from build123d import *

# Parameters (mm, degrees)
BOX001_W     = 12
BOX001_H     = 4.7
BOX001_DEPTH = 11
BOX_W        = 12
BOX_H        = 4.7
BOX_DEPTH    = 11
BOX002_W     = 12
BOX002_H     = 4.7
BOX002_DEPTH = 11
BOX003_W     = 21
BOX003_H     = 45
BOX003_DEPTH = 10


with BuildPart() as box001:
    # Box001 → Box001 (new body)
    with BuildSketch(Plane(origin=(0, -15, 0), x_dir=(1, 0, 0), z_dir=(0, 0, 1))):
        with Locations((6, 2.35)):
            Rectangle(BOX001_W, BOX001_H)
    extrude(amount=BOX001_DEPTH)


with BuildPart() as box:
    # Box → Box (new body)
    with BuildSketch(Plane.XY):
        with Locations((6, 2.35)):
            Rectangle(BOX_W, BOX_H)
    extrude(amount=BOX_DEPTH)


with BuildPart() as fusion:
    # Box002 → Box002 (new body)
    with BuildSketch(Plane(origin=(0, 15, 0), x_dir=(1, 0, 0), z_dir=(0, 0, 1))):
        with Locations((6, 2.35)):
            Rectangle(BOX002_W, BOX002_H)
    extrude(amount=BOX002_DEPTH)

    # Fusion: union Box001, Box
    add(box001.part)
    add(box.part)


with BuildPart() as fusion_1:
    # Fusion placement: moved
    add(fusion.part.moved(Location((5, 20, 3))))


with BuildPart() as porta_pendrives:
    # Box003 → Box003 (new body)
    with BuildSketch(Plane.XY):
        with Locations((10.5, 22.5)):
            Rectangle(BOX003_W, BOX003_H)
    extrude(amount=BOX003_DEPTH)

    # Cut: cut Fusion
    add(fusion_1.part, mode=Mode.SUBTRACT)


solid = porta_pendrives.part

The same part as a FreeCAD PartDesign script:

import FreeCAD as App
import Part
import Sketcher
Q = App.Units.Quantity

doc = App.newDocument("Part")
body = doc.addObject("PartDesign::Body", "Body")

sketch1 = doc.addObject("Sketcher::SketchObject", "Sketch")
body.addObject(sketch1)
sketch1.AttachmentSupport = (doc.XY_Plane, [""])
sketch1.MapMode = "FlatFace"
sketch1.addGeometry([
    Part.LineSegment(App.Vector(0, -10.3, 0), App.Vector(0, -15, 0)),
    Part.LineSegment(App.Vector(0, -15, 0), App.Vector(12, -15, 0)),
    Part.LineSegment(App.Vector(12, -15, 0), App.Vector(12, -10.3, 0)),
    Part.LineSegment(App.Vector(12, -10.3, 0), App.Vector(0, -10.3, 0)),
], False)
sketch1.addConstraint([
    Sketcher.Constraint("Coincident", 0, 2, 1, 1),
    Sketcher.Constraint("Coincident", 1, 2, 2, 1),
    Sketcher.Constraint("Coincident", 2, 2, 3, 1),
    Sketcher.Constraint("Coincident", 3, 2, 0, 1),
    Sketcher.Constraint("Vertical", 0),
    Sketcher.Constraint("Horizontal", 1),
    Sketcher.Constraint("Vertical", 2),
    Sketcher.Constraint("Horizontal", 3),
    Sketcher.Constraint("PointOnObject", 0, 2, -2),
    Sketcher.Constraint("DistanceX", 1, 1, 1, 2, Q("12 mm")),
    Sketcher.Constraint("DistanceY", 0, 2, 0, 1, Q("4.7 mm")),
    Sketcher.Constraint("DistanceY", 0, 2, -1, 1, Q("15 mm")),
])
pad1 = doc.addObject("PartDesign::Pad", "Pad")
body.addObject(pad1)
pad1.Profile = sketch1
pad1.Length = 11
body2 = doc.addObject("PartDesign::Body", "Body001")

sketch2 = doc.addObject("Sketcher::SketchObject", "Sketch001")
body2.addObject(sketch2)
sketch2.AttachmentSupport = (doc.getObject("XY_Plane001"), [""])
sketch2.MapMode = "FlatFace"
sketch2.addGeometry([
    Part.LineSegment(App.Vector(0, 4.7, 0), App.Vector(0, 0, 0)),
    Part.LineSegment(App.Vector(0, 0, 0), App.Vector(12, 0, 0)),
    Part.LineSegment(App.Vector(12, 0, 0), App.Vector(12, 4.7, 0)),
    Part.LineSegment(App.Vector(12, 4.7, 0), App.Vector(0, 4.7, 0)),
], False)
sketch2.addConstraint([
    Sketcher.Constraint("Coincident", 0, 2, 1, 1),
    Sketcher.Constraint("Coincident", 1, 2, 2, 1),
    Sketcher.Constraint("Coincident", 2, 2, 3, 1),
    Sketcher.Constraint("Coincident", 3, 2, 0, 1),
    Sketcher.Constraint("Vertical", 0),
    Sketcher.Constraint("Horizontal", 1),
    Sketcher.Constraint("Vertical", 2),
    Sketcher.Constraint("Horizontal", 3),
    Sketcher.Constraint("Coincident", 0, 2, -1, 1),
    Sketcher.Constraint("DistanceX", 1, 1, 1, 2, Q("12 mm")),
    Sketcher.Constraint("DistanceY", 0, 2, 0, 1, Q("4.7 mm")),
])
pad2 = doc.addObject("PartDesign::Pad", "Pad001")
body2.addObject(pad2)
pad2.Profile = sketch2
pad2.Length = 11
body3 = doc.addObject("PartDesign::Body", "Body002")
body3.AllowCompound = True

sketch3 = doc.addObject("Sketcher::SketchObject", "Sketch002")
body3.addObject(sketch3)
sketch3.AttachmentSupport = (doc.getObject("XY_Plane002"), [""])
sketch3.MapMode = "FlatFace"
sketch3.addGeometry([
    Part.LineSegment(App.Vector(0, 19.7, 0), App.Vector(0, 15, 0)),
    Part.LineSegment(App.Vector(0, 15, 0), App.Vector(12, 15, 0)),
    Part.LineSegment(App.Vector(12, 15, 0), App.Vector(12, 19.7, 0)),
    Part.LineSegment(App.Vector(12, 19.7, 0), App.Vector(0, 19.7, 0)),
], False)
sketch3.addConstraint([
    Sketcher.Constraint("Coincident", 0, 2, 1, 1),
    Sketcher.Constraint("Coincident", 1, 2, 2, 1),
    Sketcher.Constraint("Coincident", 2, 2, 3, 1),
    Sketcher.Constraint("Coincident", 3, 2, 0, 1),
    Sketcher.Constraint("Vertical", 0),
    Sketcher.Constraint("Horizontal", 1),
    Sketcher.Constraint("Vertical", 2),
    Sketcher.Constraint("Horizontal", 3),
    Sketcher.Constraint("PointOnObject", 0, 2, -2),
    Sketcher.Constraint("DistanceX", 1, 1, 1, 2, Q("12 mm")),
    Sketcher.Constraint("DistanceY", 0, 2, 0, 1, Q("4.7 mm")),
    Sketcher.Constraint("DistanceY", -1, 1, 0, 2, Q("15 mm")),
])
pad3 = doc.addObject("PartDesign::Pad", "Pad002")
body3.addObject(pad3)
pad3.Profile = sketch3
pad3.Length = 11
doc.recompute()

boolean = doc.addObject("PartDesign::Boolean", "Boolean")
body3.addObject(boolean)
boolean.Type = "Fuse"
boolean.addObjects([body])
doc.recompute()

boolean2 = doc.addObject("PartDesign::Boolean", "Boolean001")
body3.addObject(boolean2)
boolean2.Type = "Fuse"
boolean2.addObjects([body2])
body4 = doc.addObject("PartDesign::Body", "Body003")
body4.AllowCompound = True
doc.recompute()

body3.Placement = App.Placement(App.Vector(5, 20, 3), App.Rotation(App.Vector(0, 0, 1), 0))
boolean3 = doc.addObject("PartDesign::Boolean", "Boolean002")
body4.addObject(boolean3)
boolean3.Type = "Fuse"
boolean3.addObjects([body3])
body5 = doc.addObject("PartDesign::Body", "Body004")

sketch4 = doc.addObject("Sketcher::SketchObject", "Sketch003")
body5.addObject(sketch4)
sketch4.AttachmentSupport = (doc.getObject("XY_Plane004"), [""])
sketch4.MapMode = "FlatFace"
sketch4.addGeometry([
    Part.LineSegment(App.Vector(0, 45, 0), App.Vector(0, 0, 0)),
    Part.LineSegment(App.Vector(0, 0, 0), App.Vector(21, 0, 0)),
    Part.LineSegment(App.Vector(21, 0, 0), App.Vector(21, 45, 0)),
    Part.LineSegment(App.Vector(21, 45, 0), App.Vector(0, 45, 0)),
], False)
sketch4.addConstraint([
    Sketcher.Constraint("Coincident", 0, 2, 1, 1),
    Sketcher.Constraint("Coincident", 1, 2, 2, 1),
    Sketcher.Constraint("Coincident", 2, 2, 3, 1),
    Sketcher.Constraint("Coincident", 3, 2, 0, 1),
    Sketcher.Constraint("Vertical", 0),
    Sketcher.Constraint("Horizontal", 1),
    Sketcher.Constraint("Vertical", 2),
    Sketcher.Constraint("Horizontal", 3),
    Sketcher.Constraint("Coincident", 0, 2, -1, 1),
    Sketcher.Constraint("DistanceX", 1, 1, 1, 2, Q("21 mm")),
    Sketcher.Constraint("DistanceY", 0, 2, 0, 1, Q("45 mm")),
])
pad4 = doc.addObject("PartDesign::Pad", "Pad003")
body5.addObject(pad4)
pad4.Profile = sketch4
pad4.Length = 10
doc.recompute()

boolean4 = doc.addObject("PartDesign::Boolean", "Boolean003")
body5.addObject(boolean4)
boolean4.Type = "Cut"
boolean4.addObjects([body4])

doc.recompute()
